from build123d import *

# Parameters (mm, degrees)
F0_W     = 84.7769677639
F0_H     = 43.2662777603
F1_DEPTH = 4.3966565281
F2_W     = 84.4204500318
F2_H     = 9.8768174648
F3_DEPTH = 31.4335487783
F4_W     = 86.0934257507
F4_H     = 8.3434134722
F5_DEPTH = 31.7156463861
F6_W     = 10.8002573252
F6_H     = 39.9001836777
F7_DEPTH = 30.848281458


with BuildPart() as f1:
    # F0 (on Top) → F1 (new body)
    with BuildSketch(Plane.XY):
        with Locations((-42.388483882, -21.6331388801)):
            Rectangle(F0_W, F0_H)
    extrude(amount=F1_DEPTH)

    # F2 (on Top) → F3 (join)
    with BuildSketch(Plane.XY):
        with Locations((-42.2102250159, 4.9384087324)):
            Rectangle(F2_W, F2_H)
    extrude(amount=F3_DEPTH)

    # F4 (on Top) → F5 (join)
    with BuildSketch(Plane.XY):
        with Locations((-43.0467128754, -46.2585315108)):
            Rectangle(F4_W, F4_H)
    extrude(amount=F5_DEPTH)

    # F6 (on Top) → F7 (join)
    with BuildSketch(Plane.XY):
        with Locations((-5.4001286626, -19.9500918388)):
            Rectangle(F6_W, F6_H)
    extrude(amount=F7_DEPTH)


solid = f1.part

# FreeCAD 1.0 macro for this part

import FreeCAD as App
import Part
import Sketcher

V = App.Vector
Q = App.Units.Quantity

doc = App.newDocument("Part")
body = doc.addObject("PartDesign::Body", "Body")

# Sketch on XY plane
sketch1 = body.newObject("Sketcher::SketchObject", "Sketch")
sketch1.AttachmentSupport = (doc.getObject("XY_Plane"), [""])
sketch1.MapMode = "FlatFace"
sketch1.addGeometry([
    Part.LineSegment(V(-84.776968, 0, 0), V(-84.776968, -43.266278, 0)),
    Part.LineSegment(V(-84.776968, -43.266278, 0), V(0, -43.266278, 0)),
    Part.LineSegment(V(0, -43.266278, 0), V(0, 0, 0)),
    Part.LineSegment(V(0, 0, 0), V(-84.776968, 0, 0)),
], False)
sketch1.addConstraint([
    Sketcher.Constraint("Coincident", 0, 2, 1, 1),
    Sketcher.Constraint("Coincident", 1, 2, 2, 1),
    Sketcher.Constraint("Coincident", 2, 2, 3, 1),
    Sketcher.Constraint("Coincident", 3, 2, 0, 1),
    Sketcher.Constraint("Vertical", 0),
    Sketcher.Constraint("Horizontal", 1),
    Sketcher.Constraint("Vertical", 2),
    Sketcher.Constraint("Horizontal", 3),
    Sketcher.Constraint("Coincident", 2, 2, -1, 1),
    Sketcher.Constraint("DistanceX", 1, 1, 1, 2, Q("84.776968 mm")),
    Sketcher.Constraint("DistanceY", 0, 2, 0, 1, Q("43.266278 mm")),
])
pad1 = body.newObject("PartDesign::Pad", "Pad")
pad1.Profile = sketch1
pad1.Length = 4.396657

# Sketch on XY plane
sketch2 = body.newObject("Sketcher::SketchObject", "Sketch001")
sketch2.AttachmentSupport = (doc.getObject("XY_Plane"), [""])
sketch2.MapMode = "FlatFace"
sketch2.addGeometry([
    Part.LineSegment(V(-84.42045, 9.876817, 0), V(-84.42045, 0, 0)),
    Part.LineSegment(V(-84.42045, 0, 0), V(0, 0, 0)),
    Part.LineSegment(V(0, 0, 0), V(0, 9.876817, 0)),
    Part.LineSegment(V(0, 9.876817, 0), V(-84.42045, 9.876817, 0)),
], False)
sketch2.addConstraint([
    Sketcher.Constraint("Coincident", 0, 2, 1, 1),
    Sketcher.Constraint("Coincident", 1, 2, 2, 1),
    Sketcher.Constraint("Coincident", 2, 2, 3, 1),
    Sketcher.Constraint("Coincident", 3, 2, 0, 1),
    Sketcher.Constraint("Vertical", 0),
    Sketcher.Constraint("Horizontal", 1),
    Sketcher.Constraint("Vertical", 2),
    Sketcher.Constraint("Horizontal", 3),
    Sketcher.Constraint("Coincident", 1, 2, -1, 1),
    Sketcher.Constraint("DistanceX", 1, 1, 1, 2, Q("84.42045 mm")),
    Sketcher.Constraint("DistanceY", 0, 2, 0, 1, Q("9.876817 mm")),
])
pad2 = body.newObject("PartDesign::Pad", "Pad001")
pad2.Profile = sketch2
pad2.Length = 31.433549

# Sketch on XY plane
sketch3 = body.newObject("Sketcher::SketchObject", "Sketch002")
sketch3.AttachmentSupport = (doc.getObject("XY_Plane"), [""])
sketch3.MapMode = "FlatFace"
sketch3.addGeometry([
    Part.LineSegment(V(-86.093426, -42.086825, 0), V(-86.093426, -50.430238, 0)),
    Part.LineSegment(V(-86.093426, -50.430238, 0), V(0, -50.430238, 0)),
    Part.LineSegment(V(0, -50.430238, 0), V(0, -42.086825, 0)),
    Part.LineSegment(V(0, -42.086825, 0), V(-86.093426, -42.086825, 0)),
], False)
sketch3.addConstraint([
    Sketcher.Constraint("Coincident", 0, 2, 1, 1),
    Sketcher.Constraint("Coincident", 1, 2, 2, 1),
    Sketcher.Constraint("Coincident", 2, 2, 3, 1),
    Sketcher.Constraint("Coincident", 3, 2, 0, 1),
    Sketcher.Constraint("Vertical", 0),
    Sketcher.Constraint("Horizontal", 1),
    Sketcher.Constraint("Vertical", 2),
    Sketcher.Constraint("Horizontal", 3),
    Sketcher.Constraint("PointOnObject", 1, 2, -2),
    Sketcher.Constraint("DistanceX", 1, 1, 1, 2, Q("86.093426 mm")),
    Sketcher.Constraint("DistanceY", 0, 2, 0, 1, Q("8.343413 mm")),
    Sketcher.Constraint("DistanceY", 0, 2, -1, 1, Q("50.430238 mm")),
])
pad3 = body.newObject("PartDesign::Pad", "Pad002")
pad3.Profile = sketch3
pad3.Length = 31.715646

# Sketch on XY plane
sketch4 = body.newObject("Sketcher::SketchObject", "Sketch003")
sketch4.AttachmentSupport = (doc.getObject("XY_Plane"), [""])
sketch4.MapMode = "FlatFace"
sketch4.addGeometry([
    Part.LineSegment(V(-10.800257, 0, 0), V(-10.800257, -39.900184, 0)),
    Part.LineSegment(V(-10.800257, -39.900184, 0), V(0, -39.900184, 0)),
    Part.LineSegment(V(0, -39.900184, 0), V(0, 0, 0)),
    Part.LineSegment(V(0, 0, 0), V(-10.800257, 0, 0)),
], False)
sketch4.addConstraint([
    Sketcher.Constraint("Coincident", 0, 2, 1, 1),
    Sketcher.Constraint("Coincident", 1, 2, 2, 1),
    Sketcher.Constraint("Coincident", 2, 2, 3, 1),
    Sketcher.Constraint("Coincident", 3, 2, 0, 1),
    Sketcher.Constraint("Vertical", 0),
    Sketcher.Constraint("Horizontal", 1),
    Sketcher.Constraint("Vertical", 2),
    Sketcher.Constraint("Horizontal", 3),
    Sketcher.Constraint("Coincident", 2, 2, -1, 1),
    Sketcher.Constraint("DistanceX", 1, 1, 1, 2, Q("10.800257 mm")),
    Sketcher.Constraint("DistanceY", 0, 2, 0, 1, Q("39.900184 mm")),
])
pad4 = body.newObject("PartDesign::Pad", "Pad003")
pad4.Profile = sketch4
pad4.Length = 30.848281

doc.recompute()
